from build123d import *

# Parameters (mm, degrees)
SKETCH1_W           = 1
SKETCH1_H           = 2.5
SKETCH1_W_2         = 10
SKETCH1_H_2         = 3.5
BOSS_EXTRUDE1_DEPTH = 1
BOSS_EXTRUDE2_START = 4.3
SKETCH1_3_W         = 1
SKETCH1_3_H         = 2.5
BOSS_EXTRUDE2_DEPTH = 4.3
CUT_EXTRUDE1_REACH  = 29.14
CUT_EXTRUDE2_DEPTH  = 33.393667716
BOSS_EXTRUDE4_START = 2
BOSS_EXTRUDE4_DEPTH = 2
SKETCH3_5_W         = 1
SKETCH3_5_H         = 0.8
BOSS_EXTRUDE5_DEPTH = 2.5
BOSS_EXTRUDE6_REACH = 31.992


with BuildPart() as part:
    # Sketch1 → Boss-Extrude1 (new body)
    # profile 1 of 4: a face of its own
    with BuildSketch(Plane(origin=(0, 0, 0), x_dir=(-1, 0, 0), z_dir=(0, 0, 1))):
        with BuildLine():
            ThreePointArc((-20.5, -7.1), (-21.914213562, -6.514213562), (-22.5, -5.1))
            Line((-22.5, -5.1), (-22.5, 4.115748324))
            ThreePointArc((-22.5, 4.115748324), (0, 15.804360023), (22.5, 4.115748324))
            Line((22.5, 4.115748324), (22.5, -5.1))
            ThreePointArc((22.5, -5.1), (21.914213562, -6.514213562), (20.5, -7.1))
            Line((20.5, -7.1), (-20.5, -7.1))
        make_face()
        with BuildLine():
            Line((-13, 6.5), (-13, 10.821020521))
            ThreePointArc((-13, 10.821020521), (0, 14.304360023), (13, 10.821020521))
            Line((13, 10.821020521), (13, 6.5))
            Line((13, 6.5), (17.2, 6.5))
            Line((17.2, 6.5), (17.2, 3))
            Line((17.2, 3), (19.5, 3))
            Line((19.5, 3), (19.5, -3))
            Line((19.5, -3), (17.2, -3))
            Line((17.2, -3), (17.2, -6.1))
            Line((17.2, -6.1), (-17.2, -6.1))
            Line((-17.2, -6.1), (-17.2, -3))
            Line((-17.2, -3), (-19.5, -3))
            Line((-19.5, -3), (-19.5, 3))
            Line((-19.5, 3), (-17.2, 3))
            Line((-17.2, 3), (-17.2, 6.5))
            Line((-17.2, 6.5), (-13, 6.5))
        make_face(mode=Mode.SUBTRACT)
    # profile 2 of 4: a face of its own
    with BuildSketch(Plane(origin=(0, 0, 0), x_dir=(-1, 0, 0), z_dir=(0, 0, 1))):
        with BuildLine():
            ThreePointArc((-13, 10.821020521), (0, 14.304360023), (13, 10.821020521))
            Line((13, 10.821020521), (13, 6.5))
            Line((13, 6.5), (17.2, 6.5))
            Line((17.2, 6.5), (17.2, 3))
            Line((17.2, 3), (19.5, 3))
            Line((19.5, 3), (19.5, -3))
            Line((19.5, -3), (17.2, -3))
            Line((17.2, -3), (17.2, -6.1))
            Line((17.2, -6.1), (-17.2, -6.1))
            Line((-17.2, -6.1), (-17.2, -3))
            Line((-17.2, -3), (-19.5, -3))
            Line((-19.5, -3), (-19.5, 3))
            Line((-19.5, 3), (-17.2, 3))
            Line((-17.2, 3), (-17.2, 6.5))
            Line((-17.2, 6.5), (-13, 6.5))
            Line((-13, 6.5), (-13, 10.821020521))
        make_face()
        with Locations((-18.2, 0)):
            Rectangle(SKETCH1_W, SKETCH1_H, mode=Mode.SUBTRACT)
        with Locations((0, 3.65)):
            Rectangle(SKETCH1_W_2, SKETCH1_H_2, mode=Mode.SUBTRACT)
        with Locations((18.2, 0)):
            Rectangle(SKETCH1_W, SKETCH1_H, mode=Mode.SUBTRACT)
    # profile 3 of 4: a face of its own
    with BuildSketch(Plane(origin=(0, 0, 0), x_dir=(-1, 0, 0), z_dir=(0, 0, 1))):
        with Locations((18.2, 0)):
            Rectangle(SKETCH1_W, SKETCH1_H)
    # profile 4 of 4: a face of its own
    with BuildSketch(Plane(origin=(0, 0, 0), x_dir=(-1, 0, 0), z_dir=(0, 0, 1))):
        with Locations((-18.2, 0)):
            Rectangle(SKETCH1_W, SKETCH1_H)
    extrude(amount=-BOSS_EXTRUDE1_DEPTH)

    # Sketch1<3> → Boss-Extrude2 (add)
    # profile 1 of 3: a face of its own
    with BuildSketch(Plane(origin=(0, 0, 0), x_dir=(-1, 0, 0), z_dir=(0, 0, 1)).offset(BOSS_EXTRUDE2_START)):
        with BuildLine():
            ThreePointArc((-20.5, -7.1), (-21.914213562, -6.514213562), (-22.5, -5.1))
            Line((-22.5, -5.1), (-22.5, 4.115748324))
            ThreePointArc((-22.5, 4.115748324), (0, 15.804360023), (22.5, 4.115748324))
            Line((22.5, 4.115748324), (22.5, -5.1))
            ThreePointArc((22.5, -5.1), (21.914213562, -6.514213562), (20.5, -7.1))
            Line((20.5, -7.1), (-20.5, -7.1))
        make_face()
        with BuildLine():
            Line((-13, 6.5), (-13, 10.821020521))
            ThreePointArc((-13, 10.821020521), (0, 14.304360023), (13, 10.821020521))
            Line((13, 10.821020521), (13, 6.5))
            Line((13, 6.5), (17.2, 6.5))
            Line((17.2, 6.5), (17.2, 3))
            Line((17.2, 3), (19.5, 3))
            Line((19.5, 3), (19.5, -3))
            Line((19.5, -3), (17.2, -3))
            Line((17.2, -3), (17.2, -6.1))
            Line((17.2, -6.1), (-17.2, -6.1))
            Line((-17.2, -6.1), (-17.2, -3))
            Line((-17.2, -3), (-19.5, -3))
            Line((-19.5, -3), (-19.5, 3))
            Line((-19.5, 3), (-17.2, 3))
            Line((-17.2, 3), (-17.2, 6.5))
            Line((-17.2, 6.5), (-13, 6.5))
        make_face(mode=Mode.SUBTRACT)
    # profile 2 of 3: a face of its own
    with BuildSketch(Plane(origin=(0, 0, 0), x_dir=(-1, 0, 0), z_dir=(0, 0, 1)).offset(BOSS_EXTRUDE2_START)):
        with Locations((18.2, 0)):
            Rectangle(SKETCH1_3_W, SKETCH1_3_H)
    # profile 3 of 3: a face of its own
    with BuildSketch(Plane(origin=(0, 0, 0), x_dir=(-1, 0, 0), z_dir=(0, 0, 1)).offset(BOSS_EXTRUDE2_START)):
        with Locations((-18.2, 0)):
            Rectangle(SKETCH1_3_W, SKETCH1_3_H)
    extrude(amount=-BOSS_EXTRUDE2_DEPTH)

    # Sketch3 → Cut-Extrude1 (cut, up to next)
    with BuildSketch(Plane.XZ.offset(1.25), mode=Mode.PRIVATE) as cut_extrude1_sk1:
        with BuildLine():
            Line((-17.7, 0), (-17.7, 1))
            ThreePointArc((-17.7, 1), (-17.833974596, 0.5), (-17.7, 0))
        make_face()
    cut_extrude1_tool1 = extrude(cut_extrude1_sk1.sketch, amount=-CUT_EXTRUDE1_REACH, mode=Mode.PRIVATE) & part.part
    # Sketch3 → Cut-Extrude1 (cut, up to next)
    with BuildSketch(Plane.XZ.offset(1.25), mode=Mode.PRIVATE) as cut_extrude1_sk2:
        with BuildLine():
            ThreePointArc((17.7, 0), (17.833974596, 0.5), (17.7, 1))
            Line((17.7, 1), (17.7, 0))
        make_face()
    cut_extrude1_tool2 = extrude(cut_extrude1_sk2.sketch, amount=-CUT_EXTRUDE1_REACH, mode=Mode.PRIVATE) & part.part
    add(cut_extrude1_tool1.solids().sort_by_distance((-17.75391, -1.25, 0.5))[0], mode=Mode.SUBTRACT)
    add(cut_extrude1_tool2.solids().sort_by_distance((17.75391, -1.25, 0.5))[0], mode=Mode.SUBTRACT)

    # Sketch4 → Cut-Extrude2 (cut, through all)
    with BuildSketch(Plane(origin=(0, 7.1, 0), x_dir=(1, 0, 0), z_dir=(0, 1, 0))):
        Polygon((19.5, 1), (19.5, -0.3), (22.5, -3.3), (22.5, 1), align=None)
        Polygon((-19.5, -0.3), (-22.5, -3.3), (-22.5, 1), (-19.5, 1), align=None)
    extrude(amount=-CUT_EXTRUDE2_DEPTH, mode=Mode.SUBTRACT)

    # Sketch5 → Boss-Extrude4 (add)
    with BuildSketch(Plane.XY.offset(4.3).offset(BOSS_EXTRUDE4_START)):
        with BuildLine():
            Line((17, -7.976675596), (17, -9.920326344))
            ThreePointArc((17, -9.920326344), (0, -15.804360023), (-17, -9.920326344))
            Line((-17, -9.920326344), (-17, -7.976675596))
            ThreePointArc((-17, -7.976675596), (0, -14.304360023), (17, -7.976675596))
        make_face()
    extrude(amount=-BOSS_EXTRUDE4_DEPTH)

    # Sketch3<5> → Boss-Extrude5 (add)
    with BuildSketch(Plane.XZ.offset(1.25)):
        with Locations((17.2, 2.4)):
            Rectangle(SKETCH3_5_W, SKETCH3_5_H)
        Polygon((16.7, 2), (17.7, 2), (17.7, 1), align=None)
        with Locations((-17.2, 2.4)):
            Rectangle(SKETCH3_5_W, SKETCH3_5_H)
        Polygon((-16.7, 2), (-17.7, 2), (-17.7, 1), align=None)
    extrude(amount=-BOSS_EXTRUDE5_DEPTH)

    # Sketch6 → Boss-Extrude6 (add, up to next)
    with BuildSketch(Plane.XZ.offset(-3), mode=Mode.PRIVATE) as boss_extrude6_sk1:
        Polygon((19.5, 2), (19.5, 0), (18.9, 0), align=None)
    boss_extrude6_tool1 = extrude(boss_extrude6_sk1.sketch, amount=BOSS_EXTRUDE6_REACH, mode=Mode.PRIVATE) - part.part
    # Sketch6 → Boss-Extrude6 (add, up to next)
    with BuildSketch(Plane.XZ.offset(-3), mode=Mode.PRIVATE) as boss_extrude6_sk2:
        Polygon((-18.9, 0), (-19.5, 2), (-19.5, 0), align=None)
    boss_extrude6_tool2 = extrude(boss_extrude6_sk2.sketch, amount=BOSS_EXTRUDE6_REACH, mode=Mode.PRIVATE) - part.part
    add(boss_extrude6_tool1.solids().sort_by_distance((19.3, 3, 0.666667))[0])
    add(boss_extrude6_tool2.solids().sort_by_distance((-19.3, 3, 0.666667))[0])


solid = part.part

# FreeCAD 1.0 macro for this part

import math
import FreeCAD as App
import Part
import Sketcher
Q = App.Units.Quantity


def add_polygon(sketch, points):
    """Adds a closed chain of lines whose ends are joined by coincident constraints."""
    first, n = sketch.GeometryCount, len(points)
    for a, b in zip(points, points[1:] + points[:1]):
        sketch.addGeometry(Part.LineSegment(App.Vector(*a, 0), App.Vector(*b, 0)), False)
    for i in range(n):
        sketch.addConstraint(Sketcher.Constraint("Coincident", first + i, 2, first + (i + 1) % n, 1))

doc = App.newDocument("Part")
body = doc.addObject("PartDesign::Body", "Body")

# Sketch on XY plane
sketch1 = body.newObject("Sketcher::SketchObject", "Sketch")
sketch1.AttachmentSupport = (doc.getObject("XY_Plane"), [""])
sketch1.MapMode = "FlatFace"
sketch1.addGeometry(Part.ArcOfCircle(Part.Circle(App.Vector(20.5, 5.1, 0), App.Vector(0, 0, 1), 2), math.radians(0), math.radians(90)), False)  # 0
sketch1.addGeometry(Part.LineSegment(App.Vector(20.5, 7.1, 0), App.Vector(-20.5, 7.1, 0)), False)  # 1
sketch1.addGeometry(Part.ArcOfCircle(Part.Circle(App.Vector(-20.5, 5.1, 0), App.Vector(0, 0, 1), 2), math.radians(90), math.radians(180)), False)  # 2
sketch1.addGeometry(Part.LineSegment(App.Vector(-22.5, 5.1, 0), App.Vector(-22.5, -4.115748, 0)), False)  # 3
sketch1.addGeometry(Part.ArcOfCircle(Part.Circle(App.Vector(0, 11.69564, 0), App.Vector(0, 0, 1), 27.5), math.radians(-144.903199), math.radians(-35.096801)), False)  # 4
sketch1.addGeometry(Part.LineSegment(App.Vector(22.5, -4.115748, 0), App.Vector(22.5, 5.1, 0)), False)  # 5
add_polygon(sketch1, [(5, -5.4), (-5, -5.4), (-5, -1.9), (5, -1.9)])  # lines 6-9
sketch1.addConstraint([
    Sketcher.Constraint("Tangent", 0, 2, 1, 1),
    Sketcher.Constraint("Tangent", 1, 2, 2, 1),
    Sketcher.Constraint("Tangent", 2, 2, 3, 1),
    Sketcher.Constraint("Coincident", 3, 2, 4, 1),
    Sketcher.Constraint("Coincident", 4, 2, 5, 1),
    Sketcher.Constraint("Tangent", 5, 2, 0, 1),
    Sketcher.Constraint("Horizontal", 1),
    Sketcher.Constraint("Vertical", 3),
    Sketcher.Constraint("Vertical", 5),
    Sketcher.Constraint("Horizontal", 6),
    Sketcher.Constraint("Vertical", 7),
    Sketcher.Constraint("Horizontal", 8),
    Sketcher.Constraint("Vertical", 9),
    Sketcher.Constraint("Equal", 0, 2),
    Sketcher.Constraint("Symmetric", 3, 2, 4, 2, -2),
    Sketcher.Constraint("Radius", 0, Q("2 mm")),
    Sketcher.Constraint("Radius", 4, Q("27.5 mm")),
    Sketcher.Constraint("DistanceX", 1, 2, 1, 1, Q("41 mm")),
    Sketcher.Constraint("DistanceX", 6, 2, 6, 1, Q("10 mm")),
    Sketcher.Constraint("DistanceY", 7, 1, 7, 2, Q("3.5 mm")),
    Sketcher.Constraint("DistanceX", 6, 2, -1, 1, Q("5 mm")),
    Sketcher.Constraint("DistanceY", 7, 2, 2, 3, Q("7 mm")),
    Sketcher.Constraint("DistanceY", -1, 1, 0, 3, Q("5.1 mm")),
    Sketcher.Constraint("DistanceY", 3, 2, 3, 1, Q("9.215748 mm")),
])
pad1 = body.newObject("PartDesign::Pad", "Pad")
pad1.Profile = sketch1
pad1.Length = 1
pad1.Reversed = True

# Sketch on XY plane
sketch2 = body.newObject("Sketcher::SketchObject", "Sketch001")
sketch2.AttachmentSupport = (doc.getObject("XY_Plane"), [""])
sketch2.MapMode = "FlatFace"
sketch2.AttachmentOffset = App.Placement(App.Vector(0, 0, 4.3), App.Rotation())
sketch2.addGeometry(Part.ArcOfCircle(Part.Circle(App.Vector(20.5, 5.1, 0), App.Vector(0, 0, 1), 2), math.radians(0), math.radians(90)), False)  # 0
sketch2.addGeometry(Part.LineSegment(App.Vector(20.5, 7.1, 0), App.Vector(-20.5, 7.1, 0)), False)  # 1
sketch2.addGeometry(Part.ArcOfCircle(Part.Circle(App.Vector(-20.5, 5.1, 0), App.Vector(0, 0, 1), 2), math.radians(90), math.radians(180)), False)  # 2
sketch2.addGeometry(Part.LineSegment(App.Vector(-22.5, 5.1, 0), App.Vector(-22.5, -4.115748, 0)), False)  # 3
sketch2.addGeometry(Part.ArcOfCircle(Part.Circle(App.Vector(0, 11.69564, 0), App.Vector(0, 0, 1), 27.5), math.radians(-144.903199), math.radians(-35.096801)), False)  # 4
sketch2.addGeometry(Part.LineSegment(App.Vector(22.5, -4.115748, 0), App.Vector(22.5, 5.1, 0)), False)  # 5
sketch2.addGeometry(Part.LineSegment(App.Vector(13, -6.5, 0), App.Vector(13, -10.821021, 0)), False)  # 6
sketch2.addGeometry(Part.ArcOfCircle(Part.Circle(App.Vector(0, 11.69564, 0), App.Vector(0, 0, 1), 26), math.radians(-120), math.radians(-60)), False)  # 7
sketch2.addGeometry(Part.LineSegment(App.Vector(-13, -10.821021, 0), App.Vector(-13, -6.5, 0)), False)  # 8
sketch2.addGeometry(Part.LineSegment(App.Vector(-13, -6.5, 0), App.Vector(-17.2, -6.5, 0)), False)  # 9
sketch2.addGeometry(Part.LineSegment(App.Vector(-17.2, -6.5, 0), App.Vector(-17.2, -3, 0)), False)  # 10
sketch2.addGeometry(Part.LineSegment(App.Vector(-17.2, -3, 0), App.Vector(-19.5, -3, 0)), False)  # 11
sketch2.addGeometry(Part.LineSegment(App.Vector(-19.5, -3, 0), App.Vector(-19.5, 3, 0)), False)  # 12
sketch2.addGeometry(Part.LineSegment(App.Vector(-19.5, 3, 0), App.Vector(-17.2, 3, 0)), False)  # 13
sketch2.addGeometry(Part.LineSegment(App.Vector(-17.2, 3, 0), App.Vector(-17.2, 6.1, 0)), False)  # 14
sketch2.addGeometry(Part.LineSegment(App.Vector(-17.2, 6.1, 0), App.Vector(17.2, 6.1, 0)), False)  # 15
sketch2.addGeometry(Part.LineSegment(App.Vector(17.2, 6.1, 0), App.Vector(17.2, 3, 0)), False)  # 16
sketch2.addGeometry(Part.LineSegment(App.Vector(17.2, 3, 0), App.Vector(19.5, 3, 0)), False)  # 17
sketch2.addGeometry(Part.LineSegment(App.Vector(19.5, 3, 0), App.Vector(19.5, -3, 0)), False)  # 18
sketch2.addGeometry(Part.LineSegment(App.Vector(19.5, -3, 0), App.Vector(17.2, -3, 0)), False)  # 19
sketch2.addGeometry(Part.LineSegment(App.Vector(17.2, -3, 0), App.Vector(17.2, -6.5, 0)), False)  # 20
sketch2.addGeometry(Part.LineSegment(App.Vector(17.2, -6.5, 0), App.Vector(13, -6.5, 0)), False)  # 21
add_polygon(sketch2, [(-17.7, -1.25), (-17.7, 1.25), (-18.7, 1.25), (-18.7, -1.25)])  # lines 22-25
add_polygon(sketch2, [(18.7, -1.25), (18.7, 1.25), (17.7, 1.25), (17.7, -1.25)])  # lines 26-29
sketch2.addConstraint([
    Sketcher.Constraint("Tangent", 0, 2, 1, 1),
    Sketcher.Constraint("Tangent", 1, 2, 2, 1),
    Sketcher.Constraint("Tangent", 2, 2, 3, 1),
    Sketcher.Constraint("Coincident", 3, 2, 4, 1),
    Sketcher.Constraint("Coincident", 4, 2, 5, 1),
    Sketcher.Constraint("Tangent", 5, 2, 0, 1),
    Sketcher.Constraint("Coincident", 6, 2, 7, 2),
    Sketcher.Constraint("Coincident", 7, 1, 8, 1),
    Sketcher.Constraint("Coincident", 8, 2, 9, 1),
    Sketcher.Constraint("Coincident", 9, 2, 10, 1),
    Sketcher.Constraint("Coincident", 10, 2, 11, 1),
    Sketcher.Constraint("Coincident", 11, 2, 12, 1),
    Sketcher.Constraint("Coincident", 12, 2, 13, 1),
    Sketcher.Constraint("Coincident", 13, 2, 14, 1),
    Sketcher.Constraint("Coincident", 14, 2, 15, 1),
    Sketcher.Constraint("Coincident", 15, 2, 16, 1),
    Sketcher.Constraint("Coincident", 16, 2, 17, 1),
    Sketcher.Constraint("Coincident", 17, 2, 18, 1),
    Sketcher.Constraint("Coincident", 18, 2, 19, 1),
    Sketcher.Constraint("Coincident", 19, 2, 20, 1),
    Sketcher.Constraint("Coincident", 20, 2, 21, 1),
    Sketcher.Constraint("Coincident", 21, 2, 6, 1),
    Sketcher.Constraint("Horizontal", 1),
    Sketcher.Constraint("Vertical", 3),
    Sketcher.Constraint("Vertical", 5),
    Sketcher.Constraint("Vertical", 6),
    Sketcher.Constraint("Vertical", 8),
    Sketcher.Constraint("Horizontal", 9),
    Sketcher.Constraint("Vertical", 10),
    Sketcher.Constraint("Horizontal", 11),
    Sketcher.Constraint("Vertical", 12),
    Sketcher.Constraint("Horizontal", 13),
    Sketcher.Constraint("Vertical", 14),
    Sketcher.Constraint("Horizontal", 15),
    Sketcher.Constraint("Vertical", 16),
    Sketcher.Constraint("Horizontal", 17),
    Sketcher.Constraint("Vertical", 18),
    Sketcher.Constraint("Horizontal", 19),
    Sketcher.Constraint("Vertical", 20),
    Sketcher.Constraint("Horizontal", 21),
    Sketcher.Constraint("Vertical", 22),
    Sketcher.Constraint("Horizontal", 23),
    Sketcher.Constraint("Vertical", 24),
    Sketcher.Constraint("Horizontal", 25),
    Sketcher.Constraint("Vertical", 26),
    Sketcher.Constraint("Horizontal", 27),
    Sketcher.Constraint("Vertical", 28),
    Sketcher.Constraint("Horizontal", 29),
    Sketcher.Constraint("Coincident", 7, 3, 4, 3),
    Sketcher.Constraint("Equal", 0, 2),
    Sketcher.Constraint("Symmetric", 10, 2, 16, 2, -1, 1),
    Sketcher.Constraint("Symmetric", 12, 2, 18, 2, -1, 1),
    Sketcher.Constraint("Symmetric", 24, 2, 26, 2, -1, 1),
    Sketcher.Constraint("Symmetric", 22, 2, 28, 2, -1, 1),
    Sketcher.Constraint("Symmetric", 3, 2, 4, 2, -2),
    Sketcher.Constraint("Symmetric", 13, 2, 16, 2, -2),
    Sketcher.Constraint("Symmetric", 9, 2, 20, 2, -2),
    Sketcher.Constraint("Horizontal", 6, 2, 7, 1),
    Sketcher.Constraint("Horizontal", 23, 2, 26, 2),
    Sketcher.Constraint("Radius", 0, Q("2 mm")),
    Sketcher.Constraint("Radius", 7, Q("26 mm")),
    Sketcher.Constraint("Radius", 4, Q("27.5 mm")),
    Sketcher.Constraint("DistanceX", 1, 2, 1, 1, Q("41 mm")),
    Sketcher.Constraint("DistanceX", 23, 2, 23, 1, Q("1 mm")),
    Sketcher.Constraint("DistanceY", 12, 1, 12, 2, Q("6 mm")),
    Sketcher.Constraint("DistanceX", 9, 2, 9, 1, Q("4.2 mm")),
    Sketcher.Constraint("DistanceX", 11, 2, 11, 1, Q("2.3 mm")),
    Sketcher.Constraint("DistanceX", 15, 1, 15, 2, Q("34.4 mm")),
    Sketcher.Constraint("DistanceY", 10, 1, 10, 2, Q("3.5 mm")),
    Sketcher.Constraint("DistanceY", 14, 1, 14, 2, Q("3.1 mm")),
    Sketcher.Constraint("DistanceY", 22, 1, 22, 2, Q("2.5 mm")),
    Sketcher.Constraint("DistanceY", 2, 3, 14, 2, Q("1 mm")),
    Sketcher.Constraint("DistanceX", 22, 2, -1, 1, Q("17.7 mm")),
    Sketcher.Constraint("DistanceY", 3, 2, 3, 1, Q("9.215748 mm")),
])
pad2 = body.newObject("PartDesign::Pad", "Pad001")
pad2.Profile = sketch2
pad2.Length = 4.3
pad2.Reversed = True

# Sketch on XZ plane
sketch3 = body.newObject("Sketcher::SketchObject", "Sketch002")
sketch3.AttachmentSupport = (doc.getObject("XZ_Plane"), [""])
sketch3.MapMode = "FlatFace"
sketch3.AttachmentOffset = App.Placement(App.Vector(0, 0, 1.25), App.Rotation())
sketch3.addGeometry([
    Part.LineSegment(App.Vector(-17.7, 0, 0), App.Vector(-17.7, 1, 0)),
    Part.ArcOfCircle(Part.Circle(App.Vector(-16.833975, 0.5, 0), App.Vector(0, 0, 1), 1), math.radians(150), math.radians(210)),
], False)
sketch3.addConstraint([
    Sketcher.Constraint("Coincident", 0, 1, 1, 2),
    Sketcher.Constraint("Coincident", 1, 1, 0, 2),
    Sketcher.Constraint("Vertical", 0),
    Sketcher.Constraint("PointOnObject", 0, 1, -1),
    Sketcher.Constraint("Radius", 1, Q("1 mm")),
    Sketcher.Constraint("DistanceY", 0, 1, 0, 2, Q("1 mm")),
    Sketcher.Constraint("DistanceX", 0, 1, -1, 1, Q("17.7 mm")),
])
pocket1 = body.newObject("PartDesign::Pocket", "Pocket")
pocket1.Profile = sketch3
pocket1.Type = "UpToFirst"

# Sketch on XZ plane
sketch4 = body.newObject("Sketcher::SketchObject", "Sketch003")
sketch4.AttachmentSupport = (doc.getObject("XZ_Plane"), [""])
sketch4.MapMode = "FlatFace"
sketch4.AttachmentOffset = App.Placement(App.Vector(0, 0, 1.25), App.Rotation())
sketch4.addGeometry([
    Part.ArcOfCircle(Part.Circle(App.Vector(16.833975, 0.5, 0), App.Vector(0, 0, 1), 1), math.radians(-30), math.radians(30)),
    Part.LineSegment(App.Vector(17.7, 1, 0), App.Vector(17.7, 0, 0)),
], False)
sketch4.addConstraint([
    Sketcher.Constraint("Coincident", 0, 1, 1, 2),
    Sketcher.Constraint("Coincident", 1, 1, 0, 2),
    Sketcher.Constraint("Vertical", 1),
    Sketcher.Constraint("PointOnObject", 0, 1, -1),
    Sketcher.Constraint("Radius", 0, Q("1 mm")),
    Sketcher.Constraint("DistanceY", 1, 2, 1, 1, Q("1 mm")),
    Sketcher.Constraint("DistanceX", -1, 1, 0, 1, Q("17.7 mm")),
])
pocket2 = body.newObject("PartDesign::Pocket", "Pocket001")
pocket2.Profile = sketch4
pocket2.Type = "UpToFirst"

# Sketch on XZ plane
sketch5 = body.newObject("Sketcher::SketchObject", "Sketch004")
sketch5.AttachmentSupport = (doc.getObject("XZ_Plane"), [""])
sketch5.MapMode = "FlatFace"
sketch5.AttachmentOffset = App.Placement(App.Vector(0, 0, -7.1), App.Rotation())
add_polygon(sketch5, [(19.5, -1), (19.5, 0.3), (22.5, 3.3), (22.5, -1)])  # lines 0-3
add_polygon(sketch5, [(-22.5, 3.3), (-19.5, 0.3), (-19.5, -1), (-22.5, -1)])  # lines 4-7
sketch5.addConstraint([
    Sketcher.Constraint("Vertical", 0),
    Sketcher.Constraint("Vertical", 2),
    Sketcher.Constraint("Horizontal", 3),
    Sketcher.Constraint("Vertical", 5),
    Sketcher.Constraint("Horizontal", 6),
    Sketcher.Constraint("Vertical", 7),
    Sketcher.Constraint("Symmetric", 0, 2, 4, 2, -2),
    Sketcher.Constraint("Symmetric", 2, 2, 6, 2, -2),
    Sketcher.Constraint("Perpendicular", 1, 4),
    Sketcher.Constraint("Horizontal", 1, 2, 7, 2),
    Sketcher.Constraint("DistanceX", 3, 2, 3, 1, Q("3 mm")),
    Sketcher.Constraint("DistanceY", 0, 1, 0, 2, Q("1.3 mm")),
    Sketcher.Constraint("DistanceY", 2, 2, -1, 1, Q("1 mm")),
    Sketcher.Constraint("DistanceX", 4, 2, 0, 2, Q("39 mm")),
])
pocket3 = body.newObject("PartDesign::Pocket", "Pocket002")
pocket3.Profile = sketch5
pocket3.Type = "ThroughAll"
pocket3.Reversed = True

# Sketch on XY plane
sketch6 = body.newObject("Sketcher::SketchObject", "Sketch005")
sketch6.AttachmentSupport = (doc.getObject("XY_Plane"), [""])
sketch6.MapMode = "FlatFace"
sketch6.AttachmentOffset = App.Placement(App.Vector(0, 0, 6.3), App.Rotation())
sketch6.addGeometry([
    Part.LineSegment(App.Vector(17, -9.920326, 0), App.Vector(17, -7.976676, 0)),
    Part.ArcOfCircle(Part.Circle(App.Vector(0, 11.69564, 0), App.Vector(0, 0, 1), 26), math.radians(-130.832217), math.radians(-49.167783)),
    Part.LineSegment(App.Vector(-17, -7.976676, 0), App.Vector(-17, -9.920326, 0)),
    Part.ArcOfCircle(Part.Circle(App.Vector(0, 11.69564, 0), App.Vector(0, 0, 1), 27.5), math.radians(-128.183482), math.radians(-51.816518)),
], False)
sketch6.addConstraint([
    Sketcher.Constraint("Coincident", 0, 2, 1, 2),
    Sketcher.Constraint("Coincident", 1, 1, 2, 1),
    Sketcher.Constraint("Coincident", 2, 2, 3, 1),
    Sketcher.Constraint("Coincident", 3, 2, 0, 1),
    Sketcher.Constraint("Vertical", 0),
    Sketcher.Constraint("Vertical", 2),
    Sketcher.Constraint("Coincident", 3, 3, 1, 3),
    Sketcher.Constraint("Symmetric", 0, 2, 1, 1, -2),
    Sketcher.Constraint("Radius", 1, Q("26 mm")),
    Sketcher.Constraint("Radius", 3, Q("27.5 mm")),
    Sketcher.Constraint("DistanceX", -1, 1, 0, 2, Q("17 mm")),
    Sketcher.Constraint("DistanceY", -1, 1, 1, 3, Q("11.69564 mm")),
])
pad3 = body.newObject("PartDesign::Pad", "Pad002")
pad3.Profile = sketch6
pad3.Length = 2
pad3.Reversed = True

# Sketch on XZ plane
sketch7 = body.newObject("Sketcher::SketchObject", "Sketch006")
sketch7.AttachmentSupport = (doc.getObject("XZ_Plane"), [""])
sketch7.MapMode = "FlatFace"
sketch7.AttachmentOffset = App.Placement(App.Vector(0, 0, 1.25), App.Rotation())
add_polygon(sketch7, [(16.7, 2.8), (16.7, 2), (17.7, 1), (17.7, 2.8)])  # lines 0-3
add_polygon(sketch7, [(-17.7, 2.8), (-17.7, 1), (-16.7, 2), (-16.7, 2.8)])  # lines 4-7
sketch7.addConstraint([
    Sketcher.Constraint("Vertical", 0),
    Sketcher.Constraint("Vertical", 2),
    Sketcher.Constraint("Horizontal", 3),
    Sketcher.Constraint("Vertical", 4),
    Sketcher.Constraint("Vertical", 6),
    Sketcher.Constraint("Horizontal", 7),
    Sketcher.Constraint("Symmetric", 1, 2, 4, 2, -2),
    Sketcher.Constraint("Symmetric", 0, 2, 5, 2, -2),
    Sketcher.Constraint("Perpendicular", 1, 5),
    Sketcher.Constraint("Horizontal", 3, 2, 6, 2),
    Sketcher.Constraint("DistanceX", 3, 2, 3, 1, Q("1 mm")),
    Sketcher.Constraint("DistanceY", 0, 2, 0, 1, Q("0.8 mm")),
    Sketcher.Constraint("DistanceY", -1, 1, 0, 2, Q("2 mm")),
    Sketcher.Constraint("DistanceX", -1, 1, 0, 2, Q("16.7 mm")),
])
pad4 = body.newObject("PartDesign::Pad", "Pad003")
pad4.Profile = sketch7
pad4.Length = 2.5
pad4.Reversed = True

# Sketch on XZ plane
sketch8 = body.newObject("Sketcher::SketchObject", "Sketch007")
sketch8.AttachmentSupport = (doc.getObject("XZ_Plane"), [""])
sketch8.MapMode = "FlatFace"
sketch8.AttachmentOffset = App.Placement(App.Vector(0, 0, -3), App.Rotation())
add_polygon(sketch8, [(19.5, 0), (19.5, 2), (18.9, 0)])  # lines 0-2
sketch8.addConstraint([
    Sketcher.Constraint("Vertical", 0),
    Sketcher.Constraint("Horizontal", 2),
    Sketcher.Constraint("PointOnObject", 1, 2, -1),
    Sketcher.Constraint("DistanceY", 0, 1, 0, 2, Q("2 mm")),
    Sketcher.Constraint("DistanceX", 2, 1, 2, 2, Q("0.6 mm")),
    Sketcher.Constraint("DistanceX", -1, 1, 0, 2, Q("19.5 mm")),
])
pad5 = body.newObject("PartDesign::Pad", "Pad004")
pad5.Profile = sketch8
pad5.Type = "UpToFirst"

# Sketch on XZ plane
sketch9 = body.newObject("Sketcher::SketchObject", "Sketch008")
sketch9.AttachmentSupport = (doc.getObject("XZ_Plane"), [""])
sketch9.MapMode = "FlatFace"
sketch9.AttachmentOffset = App.Placement(App.Vector(0, 0, -3), App.Rotation())
add_polygon(sketch9, [(-18.9, 0), (-19.5, 2), (-19.5, 0)])  # lines 0-2
sketch9.addConstraint([
    Sketcher.Constraint("Vertical", 1),
    Sketcher.Constraint("Horizontal", 2),
    Sketcher.Constraint("PointOnObject", 1, 2, -1),
    Sketcher.Constraint("DistanceY", 1, 2, 1, 1, Q("2 mm")),
    Sketcher.Constraint("DistanceX", 2, 1, 2, 2, Q("0.6 mm")),
    Sketcher.Constraint("DistanceX", 0, 2, -1, 1, Q("19.5 mm")),
])
pad6 = body.newObject("PartDesign::Pad", "Pad005")
pad6.Profile = sketch9
pad6.Type = "UpToFirst"

doc.recompute()
